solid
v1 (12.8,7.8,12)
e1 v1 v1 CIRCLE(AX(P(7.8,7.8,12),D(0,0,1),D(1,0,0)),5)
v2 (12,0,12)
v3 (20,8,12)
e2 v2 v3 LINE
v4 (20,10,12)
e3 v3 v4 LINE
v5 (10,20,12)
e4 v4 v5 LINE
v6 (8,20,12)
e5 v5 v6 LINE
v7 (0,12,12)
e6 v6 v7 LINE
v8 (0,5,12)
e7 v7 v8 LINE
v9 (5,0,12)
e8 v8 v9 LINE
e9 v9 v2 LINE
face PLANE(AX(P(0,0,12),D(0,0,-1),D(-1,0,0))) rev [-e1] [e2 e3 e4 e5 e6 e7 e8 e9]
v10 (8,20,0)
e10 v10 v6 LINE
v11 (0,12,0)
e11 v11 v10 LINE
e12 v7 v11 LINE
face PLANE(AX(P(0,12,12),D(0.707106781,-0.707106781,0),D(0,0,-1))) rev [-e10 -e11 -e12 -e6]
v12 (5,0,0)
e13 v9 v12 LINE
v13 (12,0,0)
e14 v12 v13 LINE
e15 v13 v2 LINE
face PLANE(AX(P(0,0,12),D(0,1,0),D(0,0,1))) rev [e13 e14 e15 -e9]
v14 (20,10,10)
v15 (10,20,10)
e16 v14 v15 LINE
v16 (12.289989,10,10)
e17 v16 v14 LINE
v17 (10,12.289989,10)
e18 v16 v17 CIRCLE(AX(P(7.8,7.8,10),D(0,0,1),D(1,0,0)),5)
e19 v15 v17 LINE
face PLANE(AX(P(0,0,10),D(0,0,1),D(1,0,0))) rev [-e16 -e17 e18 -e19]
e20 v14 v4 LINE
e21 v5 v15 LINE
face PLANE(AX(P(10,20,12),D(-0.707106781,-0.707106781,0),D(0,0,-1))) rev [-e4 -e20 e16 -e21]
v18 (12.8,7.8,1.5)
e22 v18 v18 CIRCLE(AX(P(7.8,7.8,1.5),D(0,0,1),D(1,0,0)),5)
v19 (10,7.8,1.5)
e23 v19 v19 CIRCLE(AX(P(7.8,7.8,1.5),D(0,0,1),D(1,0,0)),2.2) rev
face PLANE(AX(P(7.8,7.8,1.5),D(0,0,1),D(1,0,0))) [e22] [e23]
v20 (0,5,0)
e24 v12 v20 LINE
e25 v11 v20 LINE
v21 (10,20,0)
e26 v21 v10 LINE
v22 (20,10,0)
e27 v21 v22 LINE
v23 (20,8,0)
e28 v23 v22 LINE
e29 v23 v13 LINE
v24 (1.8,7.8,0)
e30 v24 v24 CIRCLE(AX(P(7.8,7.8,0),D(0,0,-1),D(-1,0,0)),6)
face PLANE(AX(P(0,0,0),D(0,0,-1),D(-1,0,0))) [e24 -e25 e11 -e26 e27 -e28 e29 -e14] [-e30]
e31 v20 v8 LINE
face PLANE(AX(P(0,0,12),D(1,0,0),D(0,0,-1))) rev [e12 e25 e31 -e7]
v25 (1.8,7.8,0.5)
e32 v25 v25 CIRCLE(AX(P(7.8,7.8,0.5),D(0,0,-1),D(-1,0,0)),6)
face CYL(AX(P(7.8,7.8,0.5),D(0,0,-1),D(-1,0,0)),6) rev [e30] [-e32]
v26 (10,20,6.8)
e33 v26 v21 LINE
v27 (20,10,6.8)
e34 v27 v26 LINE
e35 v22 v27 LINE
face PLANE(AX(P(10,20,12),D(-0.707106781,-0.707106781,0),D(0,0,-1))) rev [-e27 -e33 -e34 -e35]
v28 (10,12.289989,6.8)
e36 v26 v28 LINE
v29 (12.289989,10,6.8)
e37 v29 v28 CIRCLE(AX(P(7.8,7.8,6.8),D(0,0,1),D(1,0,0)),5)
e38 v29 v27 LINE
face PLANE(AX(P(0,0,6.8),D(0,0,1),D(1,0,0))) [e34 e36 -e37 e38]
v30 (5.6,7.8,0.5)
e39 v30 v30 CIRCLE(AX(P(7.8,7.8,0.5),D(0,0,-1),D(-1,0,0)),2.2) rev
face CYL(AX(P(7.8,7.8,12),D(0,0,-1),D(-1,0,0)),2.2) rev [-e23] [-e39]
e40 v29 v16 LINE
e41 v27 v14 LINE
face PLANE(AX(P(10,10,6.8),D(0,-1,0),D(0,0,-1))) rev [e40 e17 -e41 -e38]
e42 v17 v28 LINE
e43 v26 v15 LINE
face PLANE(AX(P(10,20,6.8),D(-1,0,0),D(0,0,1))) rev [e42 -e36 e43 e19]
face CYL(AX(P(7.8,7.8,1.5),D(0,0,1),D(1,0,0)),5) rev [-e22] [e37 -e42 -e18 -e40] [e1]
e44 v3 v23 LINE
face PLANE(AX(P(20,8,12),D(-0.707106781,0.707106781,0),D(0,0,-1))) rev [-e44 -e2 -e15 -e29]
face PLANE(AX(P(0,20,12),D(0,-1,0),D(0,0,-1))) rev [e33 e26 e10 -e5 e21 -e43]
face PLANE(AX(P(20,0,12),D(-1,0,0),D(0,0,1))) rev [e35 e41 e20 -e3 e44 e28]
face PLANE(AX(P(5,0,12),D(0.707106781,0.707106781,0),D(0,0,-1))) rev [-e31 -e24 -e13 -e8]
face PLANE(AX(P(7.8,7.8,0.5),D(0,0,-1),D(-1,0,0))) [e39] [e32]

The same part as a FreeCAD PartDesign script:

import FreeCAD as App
import Part
import Sketcher


def edges_at(feature, points):
    """Names of the edges that pass closest to the given points."""
    edges = feature.Shape.Edges
    near = lambda p: min(range(len(edges)), key=lambda i: edges[i].distToShape(Part.Vertex(*p))[0])
    return sorted({f"Edge{near(p) + 1}" for p in points})

doc = App.newDocument("Part")
body = doc.addObject("PartDesign::Body", "Body")

# Sketch on XY plane
sketch1 = body.newObject("Sketcher::SketchObject", "Sketch")
sketch1.AttachmentSupport = (doc.getObject("XY_Plane"), [""])
sketch1.MapMode = "FlatFace"
sketch1.addGeometry([
    Part.LineSegment(App.Vector(0, 20, 0), App.Vector(0, 0, 0)),
    Part.LineSegment(App.Vector(0, 0, 0), App.Vector(20, 0, 0)),
    Part.LineSegment(App.Vector(20, 0, 0), App.Vector(20, 20, 0)),
    Part.LineSegment(App.Vector(20, 20, 0), App.Vector(0, 20, 0)),
], False)
sketch1.addConstraint([
    Sketcher.Constraint("Coincident", 0, 2, 1, 1),
    Sketcher.Constraint("Coincident", 1, 2, 2, 1),
    Sketcher.Constraint("Coincident", 2, 2, 3, 1),
    Sketcher.Constraint("Coincident", 3, 2, 0, 1),
    Sketcher.Constraint("Vertical", 0),
    Sketcher.Constraint("Horizontal", 1),
    Sketcher.Constraint("Vertical", 2),
    Sketcher.Constraint("Horizontal", 3),
    Sketcher.Constraint("Coincident", 0, 2, -1, 1),
    Sketcher.Constraint("Equal", 3, 0),
    Sketcher.Constraint("DistanceX", 1, 1, 1, 2, 20.0),
])
pad1 = body.newObject("PartDesign::Pad", "Pad")
pad1.Profile = sketch1
pad1.Length = 12
doc.recompute()

chamfer = body.newObject("PartDesign::Chamfer", "Chamfer")
chamfer.Base = (pad1, edges_at(pad1, [(20, 20, 6)]))
chamfer.Size = 10

# Sketch on XY plane
sketch2 = body.newObject("Sketcher::SketchObject", "Sketch001")
sketch2.AttachmentSupport = (doc.getObject("XY_Plane"), [""])
sketch2.MapMode = "FlatFace"
sketch2.AttachmentOffset = App.Placement(App.Vector(0, 0, 10), App.Rotation())
sketch2.addGeometry([
    Part.LineSegment(App.Vector(10, 20, 0), App.Vector(10, 10, 0)),
    Part.LineSegment(App.Vector(10, 10, 0), App.Vector(20, 10, 0)),
    Part.LineSegment(App.Vector(20, 10, 0), App.Vector(10, 20, 0)),
], False)
sketch2.addConstraint([
    Sketcher.Constraint("Coincident", 0, 2, 1, 1),
    Sketcher.Constraint("Coincident", 1, 2, 2, 1),
    Sketcher.Constraint("Coincident", 2, 2, 0, 1),
    Sketcher.Constraint("Vertical", 0),
    Sketcher.Constraint("Horizontal", 1),
    Sketcher.Constraint("Equal", 1, 0),
    Sketcher.Constraint("DistanceX", 1, 1, 1, 2, 10.0),
    Sketcher.Constraint("DistanceX", -1, 1, 0, 2, 10.0),
    Sketcher.Constraint("DistanceY", -1, 1, 0, 2, 10.0),
])
pocket1 = body.newObject("PartDesign::Pocket", "Pocket")
pocket1.Profile = sketch2
pocket1.Length = 3.2

# Sketch on XY plane
sketch3 = body.newObject("Sketcher::SketchObject", "Sketch002")
sketch3.AttachmentSupport = (doc.getObject("XY_Plane"), [""])
sketch3.MapMode = "FlatFace"
sketch3.addGeometry(Part.Circle(App.Vector(7.8, 7.8, 0), App.Vector(0, 0, 1), 2.2), False)
sketch3.addConstraint([
    Sketcher.Constraint("Diameter", 0, 4.4),
    Sketcher.Constraint("DistanceX", -1, 1, 0, 3, 7.8),
    Sketcher.Constraint("DistanceY", -1, 1, 0, 3, 7.8),
])
pocket2 = body.newObject("PartDesign::Pocket", "Pocket001")
pocket2.Profile = sketch3
pocket2.Type = "ThroughAll"
pocket2.Reversed = True

# Sketch on XY plane
sketch4 = body.newObject("Sketcher::SketchObject", "Sketch003")
sketch4.AttachmentSupport = (doc.getObject("XY_Plane"), [""])
sketch4.MapMode = "FlatFace"
sketch4.AttachmentOffset = App.Placement(App.Vector(0, 0, 12), App.Rotation())
sketch4.addGeometry(Part.Circle(App.Vector(7.8, 7.8, 0), App.Vector(0, 0, 1), 5), False)
sketch4.addConstraint([
    Sketcher.Constraint("Diameter", 0, 10.0),
    Sketcher.Constraint("DistanceX", -1, 1, 0, 3, 7.8),
    Sketcher.Constraint("DistanceY", -1, 1, 0, 3, 7.8),
])
pocket3 = body.newObject("PartDesign::Pocket", "Pocket002")
pocket3.Profile = sketch4
pocket3.Length = 10.5
doc.recompute()

chamfer2 = body.newObject("PartDesign::Chamfer", "Chamfer001")
chamfer2.Base = (pocket3, edges_at(pocket3, [(0, 0, 6)]))
chamfer2.Size = 5
doc.recompute()

chamfer3 = body.newObject("PartDesign::Chamfer", "Chamfer002")
chamfer3.Base = (chamfer2, edges_at(chamfer2, [(0, 20, 6), (20, 0, 6)]))
chamfer3.Size = 8

# Sketch on XY plane
sketch5 = body.newObject("Sketcher::SketchObject", "Sketch004")
sketch5.AttachmentSupport = (doc.getObject("XY_Plane"), [""])
sketch5.MapMode = "FlatFace"
sketch5.addGeometry(Part.Circle(App.Vector(7.8, 7.8, 0), App.Vector(0, 0, 1), 6), False)
sketch5.addConstraint([
    Sketcher.Constraint("Diameter", 0, 12.0),
    Sketcher.Constraint("DistanceX", -1, 1, 0, 3, 7.8),
    Sketcher.Constraint("DistanceY", -1, 1, 0, 3, 7.8),
])
pocket4 = body.newObject("PartDesign::Pocket", "Pocket003")
pocket4.Profile = sketch5
pocket4.Length = 0.5
pocket4.Reversed = True

doc.recompute()
